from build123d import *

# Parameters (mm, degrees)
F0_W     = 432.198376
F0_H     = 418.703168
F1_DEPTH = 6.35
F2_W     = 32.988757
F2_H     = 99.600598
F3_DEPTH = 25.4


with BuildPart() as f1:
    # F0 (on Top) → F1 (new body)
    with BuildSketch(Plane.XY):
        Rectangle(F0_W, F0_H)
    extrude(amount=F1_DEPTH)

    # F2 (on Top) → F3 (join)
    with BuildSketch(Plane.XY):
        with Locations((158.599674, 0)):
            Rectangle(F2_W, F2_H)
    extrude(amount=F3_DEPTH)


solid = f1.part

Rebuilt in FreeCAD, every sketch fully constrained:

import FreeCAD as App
import Part
import Sketcher

V = App.Vector
Q = App.Units.Quantity

doc = App.newDocument("Part")
body = doc.addObject("PartDesign::Body", "Body")

# Sketch on XY plane
sketch1 = body.newObject("Sketcher::SketchObject", "Sketch")
sketch1.AttachmentSupport = (doc.getObject("XY_Plane"), [""])
sketch1.MapMode = "FlatFace"
sketch1.addGeometry(Part.LineSegment(V(-216.099188, 209.351584, 0), V(-216.099188, -209.351584, 0)), False)
sketch1.addGeometry(Part.LineSegment(V(-216.099188, -209.351584, 0), V(216.099188, -209.351584, 0)), False)
sketch1.addGeometry(Part.LineSegment(V(216.099188, -209.351584, 0), V(216.099188, 209.351584, 0)), False)
sketch1.addGeometry(Part.LineSegment(V(216.099188, 209.351584, 0), V(-216.099188, 209.351584, 0)), False)
sketch1.addConstraint(Sketcher.Constraint("Coincident", 0, 2, 1, 1))
sketch1.addConstraint(Sketcher.Constraint("Coincident", 1, 2, 2, 1))
sketch1.addConstraint(Sketcher.Constraint("Coincident", 2, 2, 3, 1))
sketch1.addConstraint(Sketcher.Constraint("Coincident", 3, 2, 0, 1))
sketch1.addConstraint(Sketcher.Constraint("Vertical", 0))
sketch1.addConstraint(Sketcher.Constraint("Horizontal", 1))
sketch1.addConstraint(Sketcher.Constraint("Vertical", 2))
sketch1.addConstraint(Sketcher.Constraint("Horizontal", 3))
sketch1.addConstraint(Sketcher.Constraint("Symmetric", 0, 2, 2, 2, -1, 1))
sketch1.addConstraint(Sketcher.Constraint("DistanceY", 0, 2, 0, 1, 418.703168))
sketch1.addConstraint(Sketcher.Constraint("DistanceX", 1, 1, 1, 2, 432.198376))
pad1 = body.newObject("PartDesign::Pad", "Pad")
pad1.Profile = sketch1
pad1.Length = Q("0.25 in")

# Sketch on XY plane
sketch2 = body.newObject("Sketcher::SketchObject", "Sketch001")
sketch2.AttachmentSupport = (doc.getObject("XY_Plane"), [""])
sketch2.MapMode = "FlatFace"
sketch2.addGeometry(Part.LineSegment(V(142.105296, 49.800299, 0), V(142.105296, -49.800299, 0)), False)
sketch2.addGeometry(Part.LineSegment(V(142.105296, -49.800299, 0), V(175.094053, -49.800299, 0)), False)
sketch2.addGeometry(Part.LineSegment(V(175.094053, -49.800299, 0), V(175.094053, 49.800299, 0)), False)
sketch2.addGeometry(Part.LineSegment(V(175.094053, 49.800299, 0), V(142.105296, 49.800299, 0)), False)
sketch2.addConstraint(Sketcher.Constraint("Coincident", 0, 2, 1, 1))
sketch2.addConstraint(Sketcher.Constraint("Coincident", 1, 2, 2, 1))
sketch2.addConstraint(Sketcher.Constraint("Coincident", 2, 2, 3, 1))
sketch2.addConstraint(Sketcher.Constraint("Coincident", 3, 2, 0, 1))
sketch2.addConstraint(Sketcher.Constraint("Vertical", 0))
sketch2.addConstraint(Sketcher.Constraint("Horizontal", 1))
sketch2.addConstraint(Sketcher.Constraint("Vertical", 2))
sketch2.addConstraint(Sketcher.Constraint("Horizontal", 3))
sketch2.addConstraint(Sketcher.Constraint("DistanceY", 0, 2, 0, 1, 99.600598))
sketch2.addConstraint(Sketcher.Constraint("DistanceY", 0, 2, -1, 1, 49.800299))
sketch2.addConstraint(Sketcher.Constraint("DistanceX", 1, 1, 1, 2, 32.988757))
sketch2.addConstraint(Sketcher.Constraint("DistanceX", -1, 1, 0, 2, 142.105296))
pad2 = body.newObject("PartDesign::Pad", "Pad001")
pad2.Profile = sketch2
pad2.Length = Q("1 in")

doc.recompute()
